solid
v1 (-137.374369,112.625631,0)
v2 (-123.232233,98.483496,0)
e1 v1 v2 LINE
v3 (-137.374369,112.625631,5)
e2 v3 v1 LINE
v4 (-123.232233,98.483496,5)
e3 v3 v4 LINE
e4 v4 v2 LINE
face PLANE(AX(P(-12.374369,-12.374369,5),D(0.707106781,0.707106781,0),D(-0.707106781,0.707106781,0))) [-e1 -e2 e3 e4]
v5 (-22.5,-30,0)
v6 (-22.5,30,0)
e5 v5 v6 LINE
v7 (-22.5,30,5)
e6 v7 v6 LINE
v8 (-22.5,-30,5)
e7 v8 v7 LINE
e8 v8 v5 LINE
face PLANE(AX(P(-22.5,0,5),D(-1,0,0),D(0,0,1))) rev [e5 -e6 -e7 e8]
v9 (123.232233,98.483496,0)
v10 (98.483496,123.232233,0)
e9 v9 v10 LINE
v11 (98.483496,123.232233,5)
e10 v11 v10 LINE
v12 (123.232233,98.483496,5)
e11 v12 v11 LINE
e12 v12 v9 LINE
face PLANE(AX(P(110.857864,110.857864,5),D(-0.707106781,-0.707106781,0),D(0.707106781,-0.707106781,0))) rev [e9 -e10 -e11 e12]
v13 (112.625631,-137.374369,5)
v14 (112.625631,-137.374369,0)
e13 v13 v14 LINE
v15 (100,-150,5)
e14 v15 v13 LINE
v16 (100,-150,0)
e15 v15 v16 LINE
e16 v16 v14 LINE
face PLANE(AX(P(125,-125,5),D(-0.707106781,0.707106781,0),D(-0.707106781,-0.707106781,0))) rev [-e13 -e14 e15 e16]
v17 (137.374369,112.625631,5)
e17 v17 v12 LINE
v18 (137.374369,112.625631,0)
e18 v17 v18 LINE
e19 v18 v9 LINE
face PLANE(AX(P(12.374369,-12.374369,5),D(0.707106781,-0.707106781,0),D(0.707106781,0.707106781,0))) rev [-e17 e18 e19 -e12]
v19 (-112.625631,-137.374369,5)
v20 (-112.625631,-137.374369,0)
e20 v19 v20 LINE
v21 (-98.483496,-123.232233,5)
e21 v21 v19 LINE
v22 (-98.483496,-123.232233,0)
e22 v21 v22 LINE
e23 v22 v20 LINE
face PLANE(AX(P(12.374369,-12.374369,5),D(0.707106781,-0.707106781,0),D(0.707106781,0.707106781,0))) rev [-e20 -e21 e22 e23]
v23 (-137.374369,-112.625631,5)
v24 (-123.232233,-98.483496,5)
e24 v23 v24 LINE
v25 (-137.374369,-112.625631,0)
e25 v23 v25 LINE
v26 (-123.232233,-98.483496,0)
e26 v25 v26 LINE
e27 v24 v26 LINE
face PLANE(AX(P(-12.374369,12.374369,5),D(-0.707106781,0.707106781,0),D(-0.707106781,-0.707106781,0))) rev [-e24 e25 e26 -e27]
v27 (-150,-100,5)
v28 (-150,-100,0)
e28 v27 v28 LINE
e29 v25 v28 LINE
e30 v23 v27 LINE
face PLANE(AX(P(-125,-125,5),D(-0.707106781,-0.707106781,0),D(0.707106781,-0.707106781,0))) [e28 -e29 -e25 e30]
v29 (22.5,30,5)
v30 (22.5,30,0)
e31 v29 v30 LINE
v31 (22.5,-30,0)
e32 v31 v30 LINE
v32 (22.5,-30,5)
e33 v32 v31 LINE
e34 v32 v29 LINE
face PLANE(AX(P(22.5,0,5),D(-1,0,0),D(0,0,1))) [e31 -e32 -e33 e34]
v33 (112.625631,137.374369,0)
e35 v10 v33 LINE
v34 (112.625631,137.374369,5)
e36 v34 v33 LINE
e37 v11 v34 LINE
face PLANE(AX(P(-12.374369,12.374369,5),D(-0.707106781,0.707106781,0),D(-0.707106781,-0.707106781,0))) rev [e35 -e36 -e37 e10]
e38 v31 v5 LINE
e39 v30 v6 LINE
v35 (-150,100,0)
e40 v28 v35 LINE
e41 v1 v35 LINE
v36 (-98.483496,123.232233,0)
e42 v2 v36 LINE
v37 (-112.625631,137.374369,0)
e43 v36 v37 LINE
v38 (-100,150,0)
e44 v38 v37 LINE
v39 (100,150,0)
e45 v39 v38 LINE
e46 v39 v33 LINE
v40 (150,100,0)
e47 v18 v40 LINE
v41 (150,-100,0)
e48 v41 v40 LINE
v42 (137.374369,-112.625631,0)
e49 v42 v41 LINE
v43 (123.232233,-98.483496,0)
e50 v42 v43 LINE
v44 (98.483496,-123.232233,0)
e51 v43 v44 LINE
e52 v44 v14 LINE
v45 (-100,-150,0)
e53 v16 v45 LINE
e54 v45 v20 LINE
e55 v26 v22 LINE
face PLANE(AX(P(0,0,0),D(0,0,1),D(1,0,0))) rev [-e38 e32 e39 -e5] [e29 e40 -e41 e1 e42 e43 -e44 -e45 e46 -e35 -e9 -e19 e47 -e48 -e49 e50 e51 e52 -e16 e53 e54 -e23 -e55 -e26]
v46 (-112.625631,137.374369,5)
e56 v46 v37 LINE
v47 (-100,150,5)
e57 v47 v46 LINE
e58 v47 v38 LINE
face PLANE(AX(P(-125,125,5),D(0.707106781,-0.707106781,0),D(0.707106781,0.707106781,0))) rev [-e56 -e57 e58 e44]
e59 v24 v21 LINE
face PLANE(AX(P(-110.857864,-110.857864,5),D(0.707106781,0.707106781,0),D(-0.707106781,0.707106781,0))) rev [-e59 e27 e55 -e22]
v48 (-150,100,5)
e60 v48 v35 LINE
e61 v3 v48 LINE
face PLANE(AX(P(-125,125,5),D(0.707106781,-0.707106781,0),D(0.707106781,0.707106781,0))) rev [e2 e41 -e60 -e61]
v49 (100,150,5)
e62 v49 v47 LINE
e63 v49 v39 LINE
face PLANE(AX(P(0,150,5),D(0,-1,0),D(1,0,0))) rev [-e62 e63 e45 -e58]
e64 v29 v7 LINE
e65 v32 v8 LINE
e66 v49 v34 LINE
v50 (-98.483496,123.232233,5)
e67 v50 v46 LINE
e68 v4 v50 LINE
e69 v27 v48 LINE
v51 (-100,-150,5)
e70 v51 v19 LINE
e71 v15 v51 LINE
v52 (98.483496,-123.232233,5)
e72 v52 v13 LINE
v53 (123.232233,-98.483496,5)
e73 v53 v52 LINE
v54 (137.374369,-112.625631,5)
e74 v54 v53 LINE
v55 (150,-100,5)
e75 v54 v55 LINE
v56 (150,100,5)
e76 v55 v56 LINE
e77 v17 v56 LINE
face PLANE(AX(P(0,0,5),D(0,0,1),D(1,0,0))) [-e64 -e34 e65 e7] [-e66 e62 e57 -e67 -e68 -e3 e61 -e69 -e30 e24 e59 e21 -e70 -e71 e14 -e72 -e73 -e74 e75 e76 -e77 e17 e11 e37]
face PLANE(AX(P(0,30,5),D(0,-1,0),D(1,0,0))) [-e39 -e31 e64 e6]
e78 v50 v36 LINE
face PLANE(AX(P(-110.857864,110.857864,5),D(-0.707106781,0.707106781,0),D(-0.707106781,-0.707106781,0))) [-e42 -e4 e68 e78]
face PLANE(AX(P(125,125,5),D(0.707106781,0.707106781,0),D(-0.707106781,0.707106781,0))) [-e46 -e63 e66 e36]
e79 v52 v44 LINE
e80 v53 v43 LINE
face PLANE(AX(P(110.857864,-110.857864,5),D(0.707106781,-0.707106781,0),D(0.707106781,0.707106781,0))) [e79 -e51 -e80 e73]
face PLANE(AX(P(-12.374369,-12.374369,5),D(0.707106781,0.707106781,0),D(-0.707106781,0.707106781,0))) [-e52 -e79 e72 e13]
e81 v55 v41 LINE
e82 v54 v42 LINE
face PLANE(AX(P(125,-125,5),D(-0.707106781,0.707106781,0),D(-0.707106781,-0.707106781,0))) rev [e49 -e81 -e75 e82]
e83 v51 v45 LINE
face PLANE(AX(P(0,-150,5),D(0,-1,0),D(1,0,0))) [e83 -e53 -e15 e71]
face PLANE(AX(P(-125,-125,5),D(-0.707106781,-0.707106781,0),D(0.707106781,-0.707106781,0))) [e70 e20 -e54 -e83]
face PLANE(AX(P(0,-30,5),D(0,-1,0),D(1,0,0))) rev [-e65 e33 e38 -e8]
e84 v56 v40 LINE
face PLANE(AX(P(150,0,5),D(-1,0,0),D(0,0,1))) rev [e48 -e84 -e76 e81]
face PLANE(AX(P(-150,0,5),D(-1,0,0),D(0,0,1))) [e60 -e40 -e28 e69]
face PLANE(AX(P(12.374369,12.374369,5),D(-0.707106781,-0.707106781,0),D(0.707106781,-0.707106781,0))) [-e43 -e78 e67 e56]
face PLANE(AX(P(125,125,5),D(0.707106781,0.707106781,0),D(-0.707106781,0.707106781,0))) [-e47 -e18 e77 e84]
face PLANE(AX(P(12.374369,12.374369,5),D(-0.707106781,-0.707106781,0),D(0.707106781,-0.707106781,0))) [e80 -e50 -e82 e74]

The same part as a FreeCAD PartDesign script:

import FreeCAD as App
import Part
import Sketcher

V = App.Vector

doc = App.newDocument("Part")
body = doc.addObject("PartDesign::Body", "Body")

sketch1 = body.newObject("Sketcher::SketchObject", "Sketch")
sketch1.AttachmentSupport = (doc.getObject("XY_Plane"), [""])
sketch1.MapMode = "FlatFace"
sketch1.addGeometry(Part.LineSegment(V(113, 137, 0), V(100, 150, 0)), False)
sketch1.addGeometry(Part.LineSegment(V(100, 150, 0), V(-100, 150, 0)), False)
sketch1.addGeometry(Part.LineSegment(V(-100, 150, 0), V(-113, 137, 0)), False)
sketch1.addGeometry(Part.LineSegment(V(-113, 137, 0), V(-98, 123, 0)), False)
sketch1.addGeometry(Part.LineSegment(V(-98, 123, 0), V(-123, 98, 0)), False)
sketch1.addGeometry(Part.LineSegment(V(-123, 98, 0), V(-137, 113, 0)), False)
sketch1.addGeometry(Part.LineSegment(V(-137, 113, 0), V(-150, 100, 0)), False)
sketch1.addGeometry(Part.LineSegment(V(-150, 100, 0), V(-150, -100, 0)), False)
sketch1.addGeometry(Part.LineSegment(V(-150, -100, 0), V(-137, -113, 0)), False)
sketch1.addGeometry(Part.LineSegment(V(-137, -113, 0), V(-123, -98, 0)), False)
sketch1.addGeometry(Part.LineSegment(V(-123, -98, 0), V(-98, -123, 0)), False)
sketch1.addGeometry(Part.LineSegment(V(-98, -123, 0), V(-113, -137, 0)), False)
sketch1.addGeometry(Part.LineSegment(V(-113, -137, 0), V(-100, -150, 0)), False)
sketch1.addGeometry(Part.LineSegment(V(-100, -150, 0), V(100, -150, 0)), False)
sketch1.addGeometry(Part.LineSegment(V(100, -150, 0), V(113, -137, 0)), False)
sketch1.addGeometry(Part.LineSegment(V(113, -137, 0), V(98, -123, 0)), False)
sketch1.addGeometry(Part.LineSegment(V(98, -123, 0), V(123, -98, 0)), False)
sketch1.addGeometry(Part.LineSegment(V(123, -98, 0), V(137, -113, 0)), False)
sketch1.addGeometry(Part.LineSegment(V(137, -113, 0), V(150, -100, 0)), False)
sketch1.addGeometry(Part.LineSegment(V(150, -100, 0), V(150, 100, 0)), False)
sketch1.addGeometry(Part.LineSegment(V(150, 100, 0), V(137, 113, 0)), False)
sketch1.addGeometry(Part.LineSegment(V(137, 113, 0), V(123, 98, 0)), False)
sketch1.addGeometry(Part.LineSegment(V(123, 98, 0), V(98, 123, 0)), False)
sketch1.addGeometry(Part.LineSegment(V(98, 123, 0), V(113, 137, 0)), False)
sketch1.addGeometry(Part.LineSegment(V(22, -30, 0), V(-22, -30, 0)), False)
sketch1.addGeometry(Part.LineSegment(V(-22, -30, 0), V(-22, 30, 0)), False)
sketch1.addGeometry(Part.LineSegment(V(-22, 30, 0), V(22, 30, 0)), False)
sketch1.addGeometry(Part.LineSegment(V(22, 30, 0), V(22, -30, 0)), False)
sketch1.addConstraint(Sketcher.Constraint("Coincident", 0, 2, 1, 1))
sketch1.addConstraint(Sketcher.Constraint("Coincident", 1, 2, 2, 1))
sketch1.addConstraint(Sketcher.Constraint("Coincident", 2, 2, 3, 1))
sketch1.addConstraint(Sketcher.Constraint("Coincident", 3, 2, 4, 1))
sketch1.addConstraint(Sketcher.Constraint("Coincident", 4, 2, 5, 1))
sketch1.addConstraint(Sketcher.Constraint("Coincident", 5, 2, 6, 1))
sketch1.addConstraint(Sketcher.Constraint("Coincident", 6, 2, 7, 1))
sketch1.addConstraint(Sketcher.Constraint("Coincident", 7, 2, 8, 1))
sketch1.addConstraint(Sketcher.Constraint("Coincident", 8, 2, 9, 1))
sketch1.addConstraint(Sketcher.Constraint("Coincident", 9, 2, 10, 1))
sketch1.addConstraint(Sketcher.Constraint("Coincident", 10, 2, 11, 1))
sketch1.addConstraint(Sketcher.Constraint("Coincident", 11, 2, 12, 1))
sketch1.addConstraint(Sketcher.Constraint("Coincident", 12, 2, 13, 1))
sketch1.addConstraint(Sketcher.Constraint("Coincident", 13, 2, 14, 1))
sketch1.addConstraint(Sketcher.Constraint("Coincident", 14, 2, 15, 1))
sketch1.addConstraint(Sketcher.Constraint("Coincident", 15, 2, 16, 1))
sketch1.addConstraint(Sketcher.Constraint("Coincident", 16, 2, 17, 1))
sketch1.addConstraint(Sketcher.Constraint("Coincident", 17, 2, 18, 1))
sketch1.addConstraint(Sketcher.Constraint("Coincident", 18, 2, 19, 1))
sketch1.addConstraint(Sketcher.Constraint("Coincident", 19, 2, 20, 1))
sketch1.addConstraint(Sketcher.Constraint("Coincident", 20, 2, 21, 1))
sketch1.addConstraint(Sketcher.Constraint("Coincident", 21, 2, 22, 1))
sketch1.addConstraint(Sketcher.Constraint("Coincident", 22, 2, 23, 1))
sketch1.addConstraint(Sketcher.Constraint("Coincident", 23, 2, 0, 1))
sketch1.addConstraint(Sketcher.Constraint("Coincident", 24, 2, 25, 1))
sketch1.addConstraint(Sketcher.Constraint("Coincident", 25, 2, 26, 1))
sketch1.addConstraint(Sketcher.Constraint("Coincident", 26, 2, 27, 1))
sketch1.addConstraint(Sketcher.Constraint("Coincident", 27, 2, 24, 1))
sketch1.addConstraint(Sketcher.Constraint("Horizontal", 1))
sketch1.addConstraint(Sketcher.Constraint("Vertical", 7))
sketch1.addConstraint(Sketcher.Constraint("Horizontal", 13))
sketch1.addConstraint(Sketcher.Constraint("Vertical", 19))
sketch1.addConstraint(Sketcher.Constraint("Horizontal", 24))
sketch1.addConstraint(Sketcher.Constraint("Vertical", 25))
sketch1.addConstraint(Sketcher.Constraint("Horizontal", 26))
sketch1.addConstraint(Sketcher.Constraint("Vertical", 27))
sketch1.addConstraint(Sketcher.Constraint("Symmetric", 0, 2, 12, 2, -1, 1))
sketch1.addConstraint(Sketcher.Constraint("Symmetric", 2, 2, 14, 2, -1, 1))
sketch1.addConstraint(Sketcher.Constraint("Symmetric", 3, 2, 15, 2, -1, 1))
sketch1.addConstraint(Sketcher.Constraint("Symmetric", 4, 2, 16, 2, -1, 1))
sketch1.addConstraint(Sketcher.Constraint("Symmetric", 5, 2, 17, 2, -1, 1))
sketch1.addConstraint(Sketcher.Constraint("Symmetric", 6, 2, 18, 2, -1, 1))
sketch1.addConstraint(Sketcher.Constraint("Symmetric", 8, 2, 20, 2, -1, 1))
sketch1.addConstraint(Sketcher.Constraint("Symmetric", 9, 2, 21, 2, -1, 1))
sketch1.addConstraint(Sketcher.Constraint("Symmetric", 10, 2, 22, 2, -1, 1))
sketch1.addConstraint(Sketcher.Constraint("Symmetric", 11, 2, 23, 2, -1, 1))
sketch1.addConstraint(Sketcher.Constraint("Symmetric", 24, 2, 26, 2, -1, 1))
sketch1.addConstraint(Sketcher.Constraint("Symmetric", 11, 2, 14, 2, -2))
sketch1.addConstraint(Sketcher.Constraint("Symmetric", 10, 2, 15, 2, -2))
sketch1.addConstraint(Sketcher.Constraint("Symmetric", 9, 2, 16, 2, -2))
sketch1.addConstraint(Sketcher.Constraint("Symmetric", 8, 2, 17, 2, -2))
sketch1.addConstraint(Sketcher.Constraint("Perpendicular", 0, 2))
sketch1.addConstraint(Sketcher.Constraint("Perpendicular", 2, 3))
sketch1.addConstraint(Sketcher.Constraint("Perpendicular", 3, 4))
sketch1.addConstraint(Sketcher.Constraint("Perpendicular", 4, 5))
sketch1.addConstraint(Sketcher.Constraint("Perpendicular", 5, 6))
sketch1.addConstraint(Sketcher.Constraint("Perpendicular", 6, 8))
sketch1.addConstraint(Sketcher.Constraint("Perpendicular", 8, 9))
sketch1.addConstraint(Sketcher.Constraint("Perpendicular", 12, 14))
sketch1.addConstraint(Sketcher.Constraint("Perpendicular", 18, 20))
sketch1.addConstraint(Sketcher.Constraint("Equal", 13, 7))
sketch1.addConstraint(Sketcher.Constraint("Equal", 3, 5))
sketch1.addConstraint(Sketcher.Constraint("Equal", 2, 6))
sketch1.addConstraint(Sketcher.Constraint("DistanceX", 1, 2, 1, 1, 200.0))
sketch1.addConstraint(Sketcher.Constraint("DistanceX", 24, 2, 24, 1, 45.0))
sketch1.addConstraint(Sketcher.Constraint("DistanceY", 25, 1, 25, 2, 60.0))
sketch1.addConstraint(Sketcher.Constraint("Distance", 3, 20.0))
sketch1.addConstraint(Sketcher.Constraint("Distance", 4, 35.0))
sketch1.addConstraint(Sketcher.Constraint("DistanceY", -1, 1, 0, 2, 150.0))
pad1 = body.newObject("PartDesign::Pad", "Pad")
pad1.Profile = sketch1
pad1.Length = 5

doc.recompute()
